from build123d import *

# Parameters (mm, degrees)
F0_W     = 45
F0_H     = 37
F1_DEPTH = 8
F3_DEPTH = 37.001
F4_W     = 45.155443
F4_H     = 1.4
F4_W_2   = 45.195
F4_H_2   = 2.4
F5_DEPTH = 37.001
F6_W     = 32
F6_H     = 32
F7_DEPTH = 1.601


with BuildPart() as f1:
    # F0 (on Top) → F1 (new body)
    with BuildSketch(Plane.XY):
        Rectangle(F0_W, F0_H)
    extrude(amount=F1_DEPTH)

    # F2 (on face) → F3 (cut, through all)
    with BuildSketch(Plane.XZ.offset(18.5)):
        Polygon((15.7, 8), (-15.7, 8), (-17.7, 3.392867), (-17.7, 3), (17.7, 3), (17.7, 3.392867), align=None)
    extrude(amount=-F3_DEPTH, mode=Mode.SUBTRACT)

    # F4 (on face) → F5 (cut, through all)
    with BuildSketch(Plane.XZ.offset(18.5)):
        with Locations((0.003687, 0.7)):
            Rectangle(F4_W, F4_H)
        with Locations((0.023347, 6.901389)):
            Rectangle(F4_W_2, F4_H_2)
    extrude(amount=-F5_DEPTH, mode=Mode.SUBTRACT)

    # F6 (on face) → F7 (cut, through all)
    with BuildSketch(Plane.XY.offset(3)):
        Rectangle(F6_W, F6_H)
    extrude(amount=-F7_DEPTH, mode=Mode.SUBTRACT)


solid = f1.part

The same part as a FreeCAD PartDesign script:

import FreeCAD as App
import Part
import Sketcher

doc = App.newDocument("Part")
body = doc.addObject("PartDesign::Body", "Body")

# Sketch on XY plane
sketch1 = doc.addObject("Sketcher::SketchObject", "Sketch")
body.addObject(sketch1)
sketch1.AttachmentSupport = (doc.XY_Plane, [""])
sketch1.MapMode = "FlatFace"
sketch1.addGeometry([
    Part.LineSegment(App.Vector(-22, 18, 0), App.Vector(-22, -18, 0)),
    Part.LineSegment(App.Vector(-22, -18, 0), App.Vector(22, -18, 0)),
    Part.LineSegment(App.Vector(22, -18, 0), App.Vector(22, 18, 0)),
    Part.LineSegment(App.Vector(22, 18, 0), App.Vector(-22, 18, 0)),
], False)
sketch1.addConstraint([
    Sketcher.Constraint("Coincident", 0, 2, 1, 1),
    Sketcher.Constraint("Coincident", 1, 2, 2, 1),
    Sketcher.Constraint("Coincident", 2, 2, 3, 1),
    Sketcher.Constraint("Coincident", 3, 2, 0, 1),
    Sketcher.Constraint("Vertical", 0),
    Sketcher.Constraint("Horizontal", 1),
    Sketcher.Constraint("Vertical", 2),
    Sketcher.Constraint("Horizontal", 3),
    Sketcher.Constraint("Symmetric", 0, 2, 2, 2, -1, 1),
    Sketcher.Constraint("DistanceX", 1, 1, 1, 2, 45.0),
    Sketcher.Constraint("DistanceY", 0, 2, 0, 1, 37.0),
])
pad1 = doc.addObject("PartDesign::Pad", "Pad")
body.addObject(pad1)
pad1.Profile = sketch1
pad1.Length = 8

# Sketch on XZ plane
sketch2 = doc.addObject("Sketcher::SketchObject", "Sketch001")
body.addObject(sketch2)
sketch2.AttachmentSupport = (doc.XZ_Plane, [""])
sketch2.MapMode = "FlatFace"
sketch2.AttachmentOffset = App.Placement(App.Vector(0, 0, 18.5), App.Rotation())
sketch2.addGeometry([
    Part.LineSegment(App.Vector(15.7, 8, 0), App.Vector(-15.7, 8, 0)),  # 0
    Part.LineSegment(App.Vector(-15.7, 8, 0), App.Vector(-17.7, 3.39, 0)),  # 1
    Part.LineSegment(App.Vector(-17.7, 3.39, 0), App.Vector(-17.7, 3, 0)),  # 2
    Part.LineSegment(App.Vector(-17.7, 3, 0), App.Vector(17.7, 3, 0)),  # 3
    Part.LineSegment(App.Vector(17.7, 3, 0), App.Vector(17.7, 3.39, 0)),  # 4
    Part.LineSegment(App.Vector(17.7, 3.39, 0), App.Vector(15.7, 8, 0)),  # 5
], False)
sketch2.addConstraint([
    Sketcher.Constraint("Coincident", 0, 2, 1, 1),
    Sketcher.Constraint("Coincident", 1, 2, 2, 1),
    Sketcher.Constraint("Coincident", 2, 2, 3, 1),
    Sketcher.Constraint("Coincident", 3, 2, 4, 1),
    Sketcher.Constraint("Coincident", 4, 2, 5, 1),
    Sketcher.Constraint("Coincident", 5, 2, 0, 1),
    Sketcher.Constraint("Horizontal", 0),
    Sketcher.Constraint("Vertical", 2),
    Sketcher.Constraint("Horizontal", 3),
    Sketcher.Constraint("Vertical", 4),
    Sketcher.Constraint("Symmetric", 1, 2, 4, 2, -2),
    Sketcher.Constraint("Equal", 1, 5),
    Sketcher.Constraint("DistanceX", 0, 2, 0, 1, 31.4),
    Sketcher.Constraint("DistanceX", 3, 1, 3, 2, 35.4),
    Sketcher.Constraint("DistanceY", -1, 1, 0, 2, 8.0),
    Sketcher.Constraint("DistanceY", -1, 1, 2, 2, 3.0),
    Sketcher.Constraint("DistanceY", 2, 2, 2, 1, 0.392867),
])
pocket1 = doc.addObject("PartDesign::Pocket", "Pocket")
body.addObject(pocket1)
pocket1.Profile = sketch2
pocket1.Type = "ThroughAll"

# Sketch on XZ plane
sketch3 = doc.addObject("Sketcher::SketchObject", "Sketch002")
body.addObject(sketch3)
sketch3.AttachmentSupport = (doc.XZ_Plane, [""])
sketch3.MapMode = "FlatFace"
sketch3.AttachmentOffset = App.Placement(App.Vector(0, 0, 18.5), App.Rotation())
sketch3.addGeometry([
    Part.LineSegment(App.Vector(-22.6, 1.4, 0), App.Vector(-22.6, 0, 0)),  # 0
    Part.LineSegment(App.Vector(-22.6, 0, 0), App.Vector(22.6, 0, 0)),  # 1
    Part.LineSegment(App.Vector(22.6, 0, 0), App.Vector(22.6, 1.4, 0)),  # 2
    Part.LineSegment(App.Vector(22.6, 1.4, 0), App.Vector(-22.6, 1.4, 0)),  # 3
    Part.LineSegment(App.Vector(-22.6, 8.1, 0), App.Vector(-22.6, 5.7, 0)),  # 4
    Part.LineSegment(App.Vector(-22.6, 5.7, 0), App.Vector(22.6, 5.7, 0)),  # 5
    Part.LineSegment(App.Vector(22.6, 5.7, 0), App.Vector(22.6, 8.1, 0)),  # 6
    Part.LineSegment(App.Vector(22.6, 8.1, 0), App.Vector(-22.6, 8.1, 0)),  # 7
], False)
sketch3.addConstraint([
    Sketcher.Constraint("Coincident", 0, 2, 1, 1),
    Sketcher.Constraint("Coincident", 1, 2, 2, 1),
    Sketcher.Constraint("Coincident", 2, 2, 3, 1),
    Sketcher.Constraint("Coincident", 3, 2, 0, 1),
    Sketcher.Constraint("Coincident", 4, 2, 5, 1),
    Sketcher.Constraint("Coincident", 5, 2, 6, 1),
    Sketcher.Constraint("Coincident", 6, 2, 7, 1),
    Sketcher.Constraint("Coincident", 7, 2, 4, 1),
    Sketcher.Constraint("Vertical", 0),
    Sketcher.Constraint("Horizontal", 1),
    Sketcher.Constraint("Vertical", 2),
    Sketcher.Constraint("Horizontal", 3),
    Sketcher.Constraint("Vertical", 4),
    Sketcher.Constraint("Horizontal", 5),
    Sketcher.Constraint("Vertical", 6),
    Sketcher.Constraint("Horizontal", 7),
    Sketcher.Constraint("PointOnObject", 0, 2, -1),
    Sketcher.Constraint("DistanceY", 0, 2, 0, 1, 1.4),
    Sketcher.Constraint("DistanceY", 4, 2, 4, 1, 2.4),
    Sketcher.Constraint("DistanceX", 5, 1, 5, 2, 45.195),
    Sketcher.Constraint("DistanceX", 1, 1, 1, 2, 45.155443),
    Sketcher.Constraint("DistanceX", -1, 1, 1, 2, 22.581408),
    Sketcher.Constraint("DistanceY", -1, 1, 4, 2, 5.701389),
    Sketcher.Constraint("DistanceX", 4, 2, 3, 2, 0.000118),
])
pocket2 = doc.addObject("PartDesign::Pocket", "Pocket001")
body.addObject(pocket2)
pocket2.Profile = sketch3
pocket2.Type = "ThroughAll"

# Sketch on XY plane
sketch4 = doc.addObject("Sketcher::SketchObject", "Sketch003")
body.addObject(sketch4)
sketch4.AttachmentSupport = (doc.XY_Plane, [""])
sketch4.MapMode = "FlatFace"
sketch4.AttachmentOffset = App.Placement(App.Vector(0, 0, 3), App.Rotation())
sketch4.addGeometry([
    Part.LineSegment(App.Vector(-16, 16, 0), App.Vector(-16, -16, 0)),
    Part.LineSegment(App.Vector(-16, -16, 0), App.Vector(16, -16, 0)),
    Part.LineSegment(App.Vector(16, -16, 0), App.Vector(16, 16, 0)),
    Part.LineSegment(App.Vector(16, 16, 0), App.Vector(-16, 16, 0)),
], False)
sketch4.addConstraint([
    Sketcher.Constraint("Coincident", 0, 2, 1, 1),
    Sketcher.Constraint("Coincident", 1, 2, 2, 1),
    Sketcher.Constraint("Coincident", 2, 2, 3, 1),
    Sketcher.Constraint("Coincident", 3, 2, 0, 1),
    Sketcher.Constraint("Vertical", 0),
    Sketcher.Constraint("Horizontal", 1),
    Sketcher.Constraint("Vertical", 2),
    Sketcher.Constraint("Horizontal", 3),
    Sketcher.Constraint("Symmetric", 0, 2, 2, 2, -1, 1),
    Sketcher.Constraint("Equal", 3, 0),
    Sketcher.Constraint("DistanceX", 1, 1, 1, 2, 32.0),
])
pocket3 = doc.addObject("PartDesign::Pocket", "Pocket002")
body.addObject(pocket3)
pocket3.Profile = sketch4
pocket3.Type = "ThroughAll"

doc.recompute()
